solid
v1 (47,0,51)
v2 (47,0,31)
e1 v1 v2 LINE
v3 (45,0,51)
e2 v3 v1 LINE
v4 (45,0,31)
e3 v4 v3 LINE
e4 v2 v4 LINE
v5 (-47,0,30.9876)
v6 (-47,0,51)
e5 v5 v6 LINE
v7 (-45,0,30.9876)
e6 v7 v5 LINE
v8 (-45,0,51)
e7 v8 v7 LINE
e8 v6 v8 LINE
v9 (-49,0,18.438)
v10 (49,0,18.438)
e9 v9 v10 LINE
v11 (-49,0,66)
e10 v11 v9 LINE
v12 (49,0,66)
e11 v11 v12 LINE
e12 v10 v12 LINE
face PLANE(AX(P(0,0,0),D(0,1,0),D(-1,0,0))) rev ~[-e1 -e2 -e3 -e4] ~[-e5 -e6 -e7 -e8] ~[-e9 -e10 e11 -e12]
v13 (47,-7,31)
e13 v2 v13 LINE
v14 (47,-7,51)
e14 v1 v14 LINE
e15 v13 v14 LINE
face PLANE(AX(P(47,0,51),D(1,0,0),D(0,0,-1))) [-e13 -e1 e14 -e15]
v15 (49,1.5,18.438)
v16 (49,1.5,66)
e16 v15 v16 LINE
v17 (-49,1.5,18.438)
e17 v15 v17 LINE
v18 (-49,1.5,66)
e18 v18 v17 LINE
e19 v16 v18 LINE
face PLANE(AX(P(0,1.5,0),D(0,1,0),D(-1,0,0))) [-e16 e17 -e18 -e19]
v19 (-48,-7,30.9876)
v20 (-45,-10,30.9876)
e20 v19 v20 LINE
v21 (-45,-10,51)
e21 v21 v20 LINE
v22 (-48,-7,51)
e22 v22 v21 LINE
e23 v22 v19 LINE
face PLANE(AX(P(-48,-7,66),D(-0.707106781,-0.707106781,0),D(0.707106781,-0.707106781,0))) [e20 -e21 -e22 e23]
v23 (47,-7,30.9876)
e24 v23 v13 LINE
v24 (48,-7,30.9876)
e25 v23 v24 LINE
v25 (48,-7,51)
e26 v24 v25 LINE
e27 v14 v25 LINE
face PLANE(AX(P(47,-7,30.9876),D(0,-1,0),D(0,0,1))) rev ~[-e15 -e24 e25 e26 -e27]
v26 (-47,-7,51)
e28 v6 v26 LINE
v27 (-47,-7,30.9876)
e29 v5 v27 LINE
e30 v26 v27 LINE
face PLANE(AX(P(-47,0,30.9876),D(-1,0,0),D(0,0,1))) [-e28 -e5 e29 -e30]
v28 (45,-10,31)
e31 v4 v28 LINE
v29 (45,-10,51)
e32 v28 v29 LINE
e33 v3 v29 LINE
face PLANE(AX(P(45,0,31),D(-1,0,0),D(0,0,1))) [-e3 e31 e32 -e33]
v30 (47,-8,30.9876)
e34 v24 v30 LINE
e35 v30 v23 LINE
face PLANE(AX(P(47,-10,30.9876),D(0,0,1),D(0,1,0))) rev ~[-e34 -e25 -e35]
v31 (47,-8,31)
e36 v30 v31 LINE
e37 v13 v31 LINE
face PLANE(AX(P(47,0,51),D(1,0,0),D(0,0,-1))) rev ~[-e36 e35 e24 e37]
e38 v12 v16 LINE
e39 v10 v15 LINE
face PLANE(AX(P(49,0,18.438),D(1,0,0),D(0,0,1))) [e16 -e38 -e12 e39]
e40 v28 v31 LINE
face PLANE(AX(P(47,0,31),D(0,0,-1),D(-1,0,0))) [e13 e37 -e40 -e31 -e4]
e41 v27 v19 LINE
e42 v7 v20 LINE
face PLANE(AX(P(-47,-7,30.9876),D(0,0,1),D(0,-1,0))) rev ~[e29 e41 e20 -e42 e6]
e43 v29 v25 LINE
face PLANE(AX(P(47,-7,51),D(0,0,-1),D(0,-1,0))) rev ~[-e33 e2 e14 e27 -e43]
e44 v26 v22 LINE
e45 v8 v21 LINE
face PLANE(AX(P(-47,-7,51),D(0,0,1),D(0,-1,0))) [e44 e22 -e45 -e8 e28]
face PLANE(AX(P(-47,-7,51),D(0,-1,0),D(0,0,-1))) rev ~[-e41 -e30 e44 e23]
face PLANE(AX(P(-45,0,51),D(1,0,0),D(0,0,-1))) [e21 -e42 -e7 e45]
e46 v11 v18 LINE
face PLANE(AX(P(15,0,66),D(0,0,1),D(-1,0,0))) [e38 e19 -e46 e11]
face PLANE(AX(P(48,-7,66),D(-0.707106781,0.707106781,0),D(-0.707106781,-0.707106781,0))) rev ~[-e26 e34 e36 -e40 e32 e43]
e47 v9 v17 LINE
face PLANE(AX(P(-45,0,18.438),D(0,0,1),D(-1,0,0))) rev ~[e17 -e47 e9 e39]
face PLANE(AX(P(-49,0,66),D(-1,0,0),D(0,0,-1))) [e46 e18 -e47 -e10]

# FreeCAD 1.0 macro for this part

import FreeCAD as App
import Part
import Sketcher

V = App.Vector

doc = App.newDocument("Part")
body = doc.addObject("PartDesign::Body", "Body")

# Sketch on XZ plane
sketch1 = doc.addObject("Sketcher::SketchObject", "Sketch")
body.addObject(sketch1)
sketch1.AttachmentSupport = (doc.XZ_Plane, [""])
sketch1.MapMode = "FlatFace"
sketch1.addGeometry([
    Part.LineSegment(V(-49, 66, 0), V(49, 66, 0)),
    Part.LineSegment(V(49, 66, 0), V(49, 18, 0)),
    Part.LineSegment(V(49, 18, 0), V(-49, 18, 0)),
    Part.LineSegment(V(-49, 18, 0), V(-49, 66, 0)),
], False)
sketch1.addConstraint([
    Sketcher.Constraint("Coincident", 0, 2, 1, 1),
    Sketcher.Constraint("Coincident", 1, 2, 2, 1),
    Sketcher.Constraint("Coincident", 2, 2, 3, 1),
    Sketcher.Constraint("Coincident", 3, 2, 0, 1),
    Sketcher.Constraint("Horizontal", 0),
    Sketcher.Constraint("Vertical", 1),
    Sketcher.Constraint("Horizontal", 2),
    Sketcher.Constraint("Vertical", 3),
    Sketcher.Constraint("DistanceX", 0, 1, 0, 2, 98.0),
    Sketcher.Constraint("DistanceX", -1, 1, 0, 2, 49.0),
    Sketcher.Constraint("DistanceY", -1, 1, 0, 2, 66.0),
    Sketcher.Constraint("DistanceY", 1, 2, 1, 1, 47.562),
])
pad1 = doc.addObject("PartDesign::Pad", "Pad")
body.addObject(pad1)
pad1.Profile = sketch1
pad1.Length = 1.5
pad1.Reversed = True

# Sketch on XZ plane
sketch2 = doc.addObject("Sketcher::SketchObject", "Sketch001")
body.addObject(sketch2)
sketch2.AttachmentSupport = (doc.XZ_Plane, [""])
sketch2.MapMode = "FlatFace"
sketch2.addGeometry([
    Part.LineSegment(V(-45, 51, 0), V(-47, 51, 0)),  # 0
    Part.LineSegment(V(-47, 51, 0), V(-47, 31, 0)),  # 1
    Part.LineSegment(V(-47, 31, 0), V(-45, 31, 0)),  # 2
    Part.LineSegment(V(-45, 31, 0), V(-45, 51, 0)),  # 3
    Part.LineSegment(V(47, 51, 0), V(45, 51, 0)),  # 4
    Part.LineSegment(V(45, 51, 0), V(45, 31, 0)),  # 5
    Part.LineSegment(V(45, 31, 0), V(47, 31, 0)),  # 6
    Part.LineSegment(V(47, 31, 0), V(47, 51, 0)),  # 7
], False)
sketch2.addConstraint([
    Sketcher.Constraint("Coincident", 0, 2, 1, 1),
    Sketcher.Constraint("Coincident", 1, 2, 2, 1),
    Sketcher.Constraint("Coincident", 2, 2, 3, 1),
    Sketcher.Constraint("Coincident", 3, 2, 0, 1),
    Sketcher.Constraint("Coincident", 4, 2, 5, 1),
    Sketcher.Constraint("Coincident", 5, 2, 6, 1),
    Sketcher.Constraint("Coincident", 6, 2, 7, 1),
    Sketcher.Constraint("Coincident", 7, 2, 4, 1),
    Sketcher.Constraint("Horizontal", 0),
    Sketcher.Constraint("Vertical", 1),
    Sketcher.Constraint("Horizontal", 2),
    Sketcher.Constraint("Vertical", 3),
    Sketcher.Constraint("Horizontal", 4),
    Sketcher.Constraint("Vertical", 5),
    Sketcher.Constraint("Horizontal", 6),
    Sketcher.Constraint("Vertical", 7),
    Sketcher.Constraint("Symmetric", 3, 2, 4, 2, -2),
    Sketcher.Constraint("Equal", 2, 4),
    Sketcher.Constraint("DistanceX", 0, 2, 0, 1, 2.0),
    Sketcher.Constraint("DistanceY", 5, 2, 5, 1, 20.0),
    Sketcher.Constraint("DistanceX", 0, 2, -1, 1, 47.0),
    Sketcher.Constraint("DistanceY", -1, 1, 0, 2, 51.0),
    Sketcher.Constraint("DistanceY", 1, 2, 1, 1, 20.0124),
])
pad2 = doc.addObject("PartDesign::Pad", "Pad001")
body.addObject(pad2)
pad2.Profile = sketch2
pad2.Length = 10

# Sketch on YZ plane
sketch3 = doc.addObject("Sketcher::SketchObject", "Sketch002")
body.addObject(sketch3)
sketch3.AttachmentSupport = (doc.YZ_Plane, [""])
sketch3.MapMode = "FlatFace"
sketch3.AttachmentOffset = App.Placement(V(0, 0, -47), App.Rotation())
sketch3.addGeometry([
    Part.LineSegment(V(-7, 31, 0), V(-10, 31, 0)),
    Part.LineSegment(V(-10, 31, 0), V(-10, 51, 0)),
    Part.LineSegment(V(-10, 51, 0), V(-7, 51, 0)),
    Part.LineSegment(V(-7, 51, 0), V(-7, 31, 0)),
], False)
sketch3.addConstraint([
    Sketcher.Constraint("Coincident", 0, 2, 1, 1),
    Sketcher.Constraint("Coincident", 1, 2, 2, 1),
    Sketcher.Constraint("Coincident", 2, 2, 3, 1),
    Sketcher.Constraint("Coincident", 3, 2, 0, 1),
    Sketcher.Constraint("Horizontal", 0),
    Sketcher.Constraint("Vertical", 1),
    Sketcher.Constraint("Horizontal", 2),
    Sketcher.Constraint("Vertical", 3),
    Sketcher.Constraint("DistanceX", 0, 2, 0, 1, 3.0),
    Sketcher.Constraint("DistanceX", 0, 2, -1, 1, 10.0),
    Sketcher.Constraint("DistanceY", -1, 1, 1, 2, 51.0),
    Sketcher.Constraint("DistanceY", 1, 1, 1, 2, 20.0124),
])
pad3 = doc.addObject("PartDesign::Pad", "Pad002")
body.addObject(pad3)
pad3.Profile = sketch3
pad3.Length = 1
pad3.Reversed = True

# Sketch on YZ plane
sketch4 = doc.addObject("Sketcher::SketchObject", "Sketch003")
body.addObject(sketch4)
sketch4.AttachmentSupport = (doc.YZ_Plane, [""])
sketch4.MapMode = "FlatFace"
sketch4.AttachmentOffset = App.Placement(V(0, 0, 47), App.Rotation())
sketch4.addGeometry([
    Part.LineSegment(V(-10, 51, 0), V(-10, 31, 0)),
    Part.LineSegment(V(-10, 31, 0), V(-7, 31, 0)),
    Part.LineSegment(V(-7, 31, 0), V(-7, 51, 0)),
    Part.LineSegment(V(-7, 51, 0), V(-10, 51, 0)),
], False)
sketch4.addConstraint([
    Sketcher.Constraint("Coincident", 0, 2, 1, 1),
    Sketcher.Constraint("Coincident", 1, 2, 2, 1),
    Sketcher.Constraint("Coincident", 2, 2, 3, 1),
    Sketcher.Constraint("Coincident", 3, 2, 0, 1),
    Sketcher.Constraint("Vertical", 0),
    Sketcher.Constraint("Horizontal", 1),
    Sketcher.Constraint("Vertical", 2),
    Sketcher.Constraint("Horizontal", 3),
    Sketcher.Constraint("DistanceX", 1, 1, 1, 2, 3.0),
    Sketcher.Constraint("DistanceX", 0, 2, -1, 1, 10.0),
    Sketcher.Constraint("DistanceY", -1, 1, 2, 2, 51.0),
    Sketcher.Constraint("DistanceY", 0, 2, 0, 1, 20.0124),
])
pad4 = doc.addObject("PartDesign::Pad", "Pad003")
body.addObject(pad4)
pad4.Profile = sketch4
pad4.Length = 1

# Sketch on XY plane
sketch5 = doc.addObject("Sketcher::SketchObject", "Sketch004")
body.addObject(sketch5)
sketch5.AttachmentSupport = (doc.XY_Plane, [""])
sketch5.MapMode = "FlatFace"
sketch5.AttachmentOffset = App.Placement(V(0, 0, 66), App.Rotation())
sketch5.addGeometry([
    Part.LineSegment(V(-48, -10, 0), V(-45, -10, 0)),  # 0
    Part.LineSegment(V(-45, -10, 0), V(-48, -7, 0)),  # 1
    Part.LineSegment(V(-48, -7, 0), V(-48, -10, 0)),  # 2
    Part.LineSegment(V(48, -7, 0), V(45, -10, 0)),  # 3
    Part.LineSegment(V(45, -10, 0), V(48, -10, 0)),  # 4
    Part.LineSegment(V(48, -10, 0), V(48, -7, 0)),  # 5
], False)
sketch5.addConstraint([
    Sketcher.Constraint("Coincident", 0, 2, 1, 1),
    Sketcher.Constraint("Coincident", 1, 2, 2, 1),
    Sketcher.Constraint("Coincident", 2, 2, 0, 1),
    Sketcher.Constraint("Coincident", 3, 2, 4, 1),
    Sketcher.Constraint("Coincident", 4, 2, 5, 1),
    Sketcher.Constraint("Coincident", 5, 2, 3, 1),
    Sketcher.Constraint("Horizontal", 0),
    Sketcher.Constraint("Vertical", 2),
    Sketcher.Constraint("Horizontal", 4),
    Sketcher.Constraint("Vertical", 5),
    Sketcher.Constraint("Symmetric", 0, 2, 3, 2, -2),
    Sketcher.Constraint("Symmetric", 1, 2, 5, 2, -2),
    Sketcher.Constraint("Perpendicular", 1, 3),
    Sketcher.Constraint("DistanceX", 0, 1, 0, 2, 3.0),
    Sketcher.Constraint("DistanceX", 0, 2, -1, 1, 45.0),
    Sketcher.Constraint("DistanceY", 0, 2, -1, 1, 10.0),
])
pocket1 = doc.addObject("PartDesign::Pocket", "Pocket")
body.addObject(pocket1)
pocket1.Profile = sketch5
pocket1.Length = 48.25

doc.recompute()
